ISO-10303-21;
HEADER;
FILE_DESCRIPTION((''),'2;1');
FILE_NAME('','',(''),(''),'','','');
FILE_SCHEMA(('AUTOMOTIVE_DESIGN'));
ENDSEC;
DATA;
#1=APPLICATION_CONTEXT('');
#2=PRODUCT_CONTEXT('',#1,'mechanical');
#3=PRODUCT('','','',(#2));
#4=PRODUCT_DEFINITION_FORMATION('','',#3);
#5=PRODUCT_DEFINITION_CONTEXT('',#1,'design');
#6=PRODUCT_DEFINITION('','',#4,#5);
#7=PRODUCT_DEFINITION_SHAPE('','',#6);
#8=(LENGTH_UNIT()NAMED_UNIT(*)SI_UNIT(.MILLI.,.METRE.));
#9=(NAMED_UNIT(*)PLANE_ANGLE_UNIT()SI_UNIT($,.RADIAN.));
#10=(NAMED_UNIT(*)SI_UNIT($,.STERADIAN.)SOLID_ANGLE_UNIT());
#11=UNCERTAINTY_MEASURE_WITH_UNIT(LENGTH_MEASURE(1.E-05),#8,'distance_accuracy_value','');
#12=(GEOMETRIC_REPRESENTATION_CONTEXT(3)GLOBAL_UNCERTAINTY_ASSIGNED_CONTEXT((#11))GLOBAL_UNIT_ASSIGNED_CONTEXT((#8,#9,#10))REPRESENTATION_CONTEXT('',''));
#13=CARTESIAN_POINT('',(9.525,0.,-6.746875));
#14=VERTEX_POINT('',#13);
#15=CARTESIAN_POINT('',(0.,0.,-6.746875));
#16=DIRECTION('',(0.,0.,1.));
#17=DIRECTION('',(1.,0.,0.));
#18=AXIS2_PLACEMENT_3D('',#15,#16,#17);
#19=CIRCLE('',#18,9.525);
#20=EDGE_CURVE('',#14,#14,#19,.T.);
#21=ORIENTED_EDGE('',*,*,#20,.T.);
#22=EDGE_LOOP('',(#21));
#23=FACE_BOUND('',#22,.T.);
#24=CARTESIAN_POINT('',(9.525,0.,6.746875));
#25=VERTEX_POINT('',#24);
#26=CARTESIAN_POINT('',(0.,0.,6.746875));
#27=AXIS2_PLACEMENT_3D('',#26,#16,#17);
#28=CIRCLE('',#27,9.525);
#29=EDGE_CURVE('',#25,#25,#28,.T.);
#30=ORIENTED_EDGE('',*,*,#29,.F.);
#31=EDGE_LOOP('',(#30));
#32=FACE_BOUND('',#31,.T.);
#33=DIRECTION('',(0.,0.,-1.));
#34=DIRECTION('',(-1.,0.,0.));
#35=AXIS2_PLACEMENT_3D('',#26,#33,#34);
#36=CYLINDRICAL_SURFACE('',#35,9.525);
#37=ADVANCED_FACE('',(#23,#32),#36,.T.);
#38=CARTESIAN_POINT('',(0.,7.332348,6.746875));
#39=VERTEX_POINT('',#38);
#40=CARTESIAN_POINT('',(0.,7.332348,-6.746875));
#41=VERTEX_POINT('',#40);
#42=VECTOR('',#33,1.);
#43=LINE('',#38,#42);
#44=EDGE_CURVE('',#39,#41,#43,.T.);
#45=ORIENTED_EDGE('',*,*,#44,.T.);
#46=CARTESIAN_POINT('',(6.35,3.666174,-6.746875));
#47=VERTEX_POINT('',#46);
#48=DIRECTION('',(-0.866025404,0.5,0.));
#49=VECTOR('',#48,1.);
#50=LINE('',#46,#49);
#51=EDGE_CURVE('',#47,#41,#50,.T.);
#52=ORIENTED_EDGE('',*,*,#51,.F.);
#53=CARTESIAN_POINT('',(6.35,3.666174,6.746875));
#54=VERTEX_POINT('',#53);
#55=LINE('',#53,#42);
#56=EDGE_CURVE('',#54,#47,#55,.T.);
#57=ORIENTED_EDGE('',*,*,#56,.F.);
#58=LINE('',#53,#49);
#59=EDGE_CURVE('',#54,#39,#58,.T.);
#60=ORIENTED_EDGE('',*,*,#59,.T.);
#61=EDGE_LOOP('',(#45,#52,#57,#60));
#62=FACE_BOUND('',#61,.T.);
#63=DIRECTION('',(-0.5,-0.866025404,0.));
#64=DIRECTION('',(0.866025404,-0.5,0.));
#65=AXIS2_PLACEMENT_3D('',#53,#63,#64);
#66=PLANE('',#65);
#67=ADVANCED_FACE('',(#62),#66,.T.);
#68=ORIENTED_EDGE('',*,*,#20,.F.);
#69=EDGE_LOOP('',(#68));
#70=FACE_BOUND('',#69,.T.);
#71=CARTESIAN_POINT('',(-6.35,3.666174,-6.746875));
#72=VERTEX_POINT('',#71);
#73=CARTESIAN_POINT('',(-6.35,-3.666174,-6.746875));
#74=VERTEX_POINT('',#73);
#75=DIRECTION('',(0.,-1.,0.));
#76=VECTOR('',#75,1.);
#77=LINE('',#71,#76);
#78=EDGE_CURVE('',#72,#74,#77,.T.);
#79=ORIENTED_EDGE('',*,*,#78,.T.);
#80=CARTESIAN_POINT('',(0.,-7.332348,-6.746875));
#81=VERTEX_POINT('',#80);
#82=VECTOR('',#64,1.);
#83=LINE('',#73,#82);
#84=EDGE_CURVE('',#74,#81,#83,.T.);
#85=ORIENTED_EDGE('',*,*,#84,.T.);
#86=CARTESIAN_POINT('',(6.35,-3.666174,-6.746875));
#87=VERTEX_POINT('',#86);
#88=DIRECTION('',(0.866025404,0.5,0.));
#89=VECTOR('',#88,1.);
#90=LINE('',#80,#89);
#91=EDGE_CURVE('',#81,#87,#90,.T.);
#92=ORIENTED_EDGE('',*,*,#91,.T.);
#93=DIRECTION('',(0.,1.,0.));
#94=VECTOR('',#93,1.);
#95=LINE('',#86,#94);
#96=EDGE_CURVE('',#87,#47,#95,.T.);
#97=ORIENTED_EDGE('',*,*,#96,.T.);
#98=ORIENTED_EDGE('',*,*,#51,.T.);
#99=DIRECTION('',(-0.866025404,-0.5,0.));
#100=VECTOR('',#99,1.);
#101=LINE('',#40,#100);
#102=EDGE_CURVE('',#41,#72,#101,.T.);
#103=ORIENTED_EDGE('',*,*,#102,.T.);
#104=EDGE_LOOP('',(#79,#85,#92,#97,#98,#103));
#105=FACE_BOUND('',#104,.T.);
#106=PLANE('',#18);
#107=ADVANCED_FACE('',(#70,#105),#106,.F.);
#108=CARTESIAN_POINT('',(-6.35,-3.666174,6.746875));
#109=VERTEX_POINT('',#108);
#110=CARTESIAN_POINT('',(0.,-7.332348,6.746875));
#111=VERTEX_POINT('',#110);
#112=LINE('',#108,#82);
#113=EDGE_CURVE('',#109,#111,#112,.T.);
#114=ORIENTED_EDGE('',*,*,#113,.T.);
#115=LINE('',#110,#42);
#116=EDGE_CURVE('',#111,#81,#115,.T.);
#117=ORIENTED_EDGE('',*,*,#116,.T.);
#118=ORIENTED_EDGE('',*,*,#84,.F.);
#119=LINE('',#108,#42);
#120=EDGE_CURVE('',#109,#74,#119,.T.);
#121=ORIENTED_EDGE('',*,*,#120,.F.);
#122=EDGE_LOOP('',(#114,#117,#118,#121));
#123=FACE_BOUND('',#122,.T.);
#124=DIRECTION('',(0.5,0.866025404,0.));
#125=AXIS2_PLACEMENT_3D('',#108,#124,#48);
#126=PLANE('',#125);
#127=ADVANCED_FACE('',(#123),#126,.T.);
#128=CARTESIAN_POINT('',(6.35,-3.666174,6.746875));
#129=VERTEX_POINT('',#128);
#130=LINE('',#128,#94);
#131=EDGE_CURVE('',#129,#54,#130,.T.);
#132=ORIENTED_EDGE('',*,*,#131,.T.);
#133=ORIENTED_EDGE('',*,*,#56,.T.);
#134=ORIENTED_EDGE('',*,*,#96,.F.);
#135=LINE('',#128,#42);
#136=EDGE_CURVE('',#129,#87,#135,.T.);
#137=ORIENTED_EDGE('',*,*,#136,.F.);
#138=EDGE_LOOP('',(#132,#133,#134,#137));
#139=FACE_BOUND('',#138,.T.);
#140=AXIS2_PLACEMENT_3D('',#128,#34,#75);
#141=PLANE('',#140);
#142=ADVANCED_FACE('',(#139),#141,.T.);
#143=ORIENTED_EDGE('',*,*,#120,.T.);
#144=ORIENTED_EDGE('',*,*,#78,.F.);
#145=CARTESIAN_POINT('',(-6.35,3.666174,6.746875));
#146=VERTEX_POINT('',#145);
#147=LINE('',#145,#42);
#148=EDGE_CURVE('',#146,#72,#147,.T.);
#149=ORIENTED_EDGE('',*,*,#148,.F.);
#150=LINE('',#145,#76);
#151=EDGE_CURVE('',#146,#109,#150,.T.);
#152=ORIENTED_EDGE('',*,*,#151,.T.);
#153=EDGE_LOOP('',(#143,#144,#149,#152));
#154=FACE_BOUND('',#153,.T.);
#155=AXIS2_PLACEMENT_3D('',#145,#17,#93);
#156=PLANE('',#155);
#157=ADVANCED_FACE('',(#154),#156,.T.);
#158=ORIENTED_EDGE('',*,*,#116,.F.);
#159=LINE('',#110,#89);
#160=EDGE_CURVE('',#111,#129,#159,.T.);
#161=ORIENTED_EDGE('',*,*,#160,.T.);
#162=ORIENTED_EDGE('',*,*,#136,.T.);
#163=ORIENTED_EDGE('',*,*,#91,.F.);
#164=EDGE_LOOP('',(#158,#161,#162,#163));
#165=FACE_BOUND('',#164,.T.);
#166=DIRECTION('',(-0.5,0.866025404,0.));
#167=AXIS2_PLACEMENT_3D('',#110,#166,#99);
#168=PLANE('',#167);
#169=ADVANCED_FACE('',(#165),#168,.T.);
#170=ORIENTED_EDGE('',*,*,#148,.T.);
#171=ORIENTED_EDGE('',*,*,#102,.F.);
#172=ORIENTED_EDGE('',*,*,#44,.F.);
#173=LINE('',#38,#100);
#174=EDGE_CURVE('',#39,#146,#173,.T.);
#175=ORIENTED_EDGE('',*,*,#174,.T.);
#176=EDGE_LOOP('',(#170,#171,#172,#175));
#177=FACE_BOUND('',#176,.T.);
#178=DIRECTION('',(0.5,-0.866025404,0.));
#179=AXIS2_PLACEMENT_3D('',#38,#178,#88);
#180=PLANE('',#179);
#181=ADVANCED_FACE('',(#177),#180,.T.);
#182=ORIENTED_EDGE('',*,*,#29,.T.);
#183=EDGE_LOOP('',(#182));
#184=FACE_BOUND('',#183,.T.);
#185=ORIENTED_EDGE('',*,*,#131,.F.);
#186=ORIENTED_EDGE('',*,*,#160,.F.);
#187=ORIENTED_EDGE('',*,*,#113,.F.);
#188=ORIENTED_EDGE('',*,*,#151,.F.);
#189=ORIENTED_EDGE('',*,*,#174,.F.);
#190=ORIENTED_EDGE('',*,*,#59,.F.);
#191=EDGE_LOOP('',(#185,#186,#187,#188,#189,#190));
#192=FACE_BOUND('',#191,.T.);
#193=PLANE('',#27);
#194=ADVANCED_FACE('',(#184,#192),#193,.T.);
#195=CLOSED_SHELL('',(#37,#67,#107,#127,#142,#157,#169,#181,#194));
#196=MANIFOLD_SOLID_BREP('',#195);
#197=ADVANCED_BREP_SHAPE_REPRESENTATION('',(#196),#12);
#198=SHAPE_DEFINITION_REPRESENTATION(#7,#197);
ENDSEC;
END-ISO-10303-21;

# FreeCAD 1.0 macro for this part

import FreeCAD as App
import Part
import Sketcher

V = App.Vector
Q = App.Units.Quantity


def add_polygon(sketch, points):
    """Adds a closed chain of lines whose ends are joined by coincident constraints."""
    first, n = sketch.GeometryCount, len(points)
    for a, b in zip(points, points[1:] + points[:1]):
        sketch.addGeometry(Part.LineSegment(App.Vector(*a, 0), App.Vector(*b, 0)), False)
    for i in range(n):
        sketch.addConstraint(Sketcher.Constraint("Coincident", first + i, 2, first + (i + 1) % n, 1))

doc = App.newDocument("Part")
params = doc.addObject("Spreadsheet::Sheet", "Params")
for row, (alias, value) in enumerate([
    ("sketch1_diameter", "0.75 in"),
    ("pad1_length", "0.53125 in"),
], start=1):
    params.set(f"A{row}", alias)
    params.set(f"B{row}", "=" + value)
    params.setAlias(f"B{row}", alias)

body = doc.addObject("PartDesign::Body", "Body")

sketch1 = doc.addObject("Sketcher::SketchObject", "Sketch")
body.addObject(sketch1)
sketch1.AttachmentSupport = (doc.XY_Plane, [""])
sketch1.MapMode = "FlatFace"
sketch1.addGeometry(Part.Circle(V(0, 0, 0), V(0, 0, 1), 10), False)
add_polygon(sketch1, [(-6, 4), (0, 7), (6, 4), (6, -4), (0, -7), (-6, -4)])
sketch1.addConstraint(Sketcher.Constraint("Vertical", 3))
sketch1.addConstraint(Sketcher.Constraint("Vertical", 6))
sketch1.addConstraint(Sketcher.Constraint("Coincident", 0, 3, -1, 1))
sketch1.addConstraint(Sketcher.Constraint("Symmetric", 1, 2, 4, 2, -1, 1))
sketch1.addConstraint(Sketcher.Constraint("Symmetric", 2, 2, 5, 2, -1, 1))
sketch1.addConstraint(Sketcher.Constraint("PointOnObject", 1, 2, -2))
sketch1.addConstraint(Sketcher.Constraint("Parallel", 1, 4))
sketch1.addConstraint(Sketcher.Constraint("Horizontal", 3, 2, 5, 2))
sketch1.addConstraint(Sketcher.Constraint("Diameter", 0, Q("0.75 in")))
sketch1.addConstraint(Sketcher.Constraint("Angle", 1, Q("30 deg")))
sketch1.addConstraint(Sketcher.Constraint("DistanceX", 5, 2, 3, 2, Q("0.5 in")))
sketch1.addConstraint(Sketcher.Constraint("DistanceY", 3, 2, 3, 1, 7.332348))
sketch1.setExpression("Constraints[14]", "Params.sketch1_diameter")
pad1 = doc.addObject("PartDesign::Pad", "Pad")
body.addObject(pad1)
pad1.Profile = sketch1
pad1.setExpression("Length", "Params.pad1_length")
pad1.Midplane = True

doc.recompute()
